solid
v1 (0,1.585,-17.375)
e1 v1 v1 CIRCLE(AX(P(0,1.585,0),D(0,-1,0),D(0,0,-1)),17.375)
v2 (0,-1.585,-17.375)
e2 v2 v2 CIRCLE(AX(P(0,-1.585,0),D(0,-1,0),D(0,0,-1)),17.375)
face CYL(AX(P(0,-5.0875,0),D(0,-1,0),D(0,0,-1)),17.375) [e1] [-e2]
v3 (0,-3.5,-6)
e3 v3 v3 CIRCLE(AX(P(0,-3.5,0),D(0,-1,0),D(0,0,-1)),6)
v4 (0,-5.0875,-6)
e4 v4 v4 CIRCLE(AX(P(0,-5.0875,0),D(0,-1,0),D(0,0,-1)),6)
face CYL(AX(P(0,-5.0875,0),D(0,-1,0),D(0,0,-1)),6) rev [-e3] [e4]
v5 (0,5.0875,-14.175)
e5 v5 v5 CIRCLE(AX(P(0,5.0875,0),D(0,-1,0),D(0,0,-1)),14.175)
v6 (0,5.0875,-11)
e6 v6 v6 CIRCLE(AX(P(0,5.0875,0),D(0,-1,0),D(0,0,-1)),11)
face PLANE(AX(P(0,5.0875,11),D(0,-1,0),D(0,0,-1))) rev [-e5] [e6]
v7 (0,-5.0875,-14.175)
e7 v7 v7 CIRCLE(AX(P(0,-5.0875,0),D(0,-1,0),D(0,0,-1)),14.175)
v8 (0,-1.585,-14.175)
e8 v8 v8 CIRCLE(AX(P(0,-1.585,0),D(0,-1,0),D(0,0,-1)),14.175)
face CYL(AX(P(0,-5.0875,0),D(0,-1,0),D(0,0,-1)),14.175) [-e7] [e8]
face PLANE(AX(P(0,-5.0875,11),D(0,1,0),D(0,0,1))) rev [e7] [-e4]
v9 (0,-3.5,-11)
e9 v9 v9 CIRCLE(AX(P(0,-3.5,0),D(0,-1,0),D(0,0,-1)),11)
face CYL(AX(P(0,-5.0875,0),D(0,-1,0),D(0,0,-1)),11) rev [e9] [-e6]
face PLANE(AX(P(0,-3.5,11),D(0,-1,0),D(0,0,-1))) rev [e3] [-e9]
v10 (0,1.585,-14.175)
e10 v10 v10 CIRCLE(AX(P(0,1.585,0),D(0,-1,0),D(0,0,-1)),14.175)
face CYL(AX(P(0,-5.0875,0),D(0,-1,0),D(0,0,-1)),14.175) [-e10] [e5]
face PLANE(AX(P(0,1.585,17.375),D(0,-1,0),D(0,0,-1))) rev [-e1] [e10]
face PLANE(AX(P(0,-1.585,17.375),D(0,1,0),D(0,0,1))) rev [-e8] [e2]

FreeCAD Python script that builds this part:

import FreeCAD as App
import Part
import Sketcher


def add_polygon(sketch, points):
    """Adds a closed chain of lines whose ends are joined by coincident constraints."""
    first, n = sketch.GeometryCount, len(points)
    for a, b in zip(points, points[1:] + points[:1]):
        sketch.addGeometry(Part.LineSegment(App.Vector(*a, 0), App.Vector(*b, 0)), False)
    for i in range(n):
        sketch.addConstraint(Sketcher.Constraint("Coincident", first + i, 2, first + (i + 1) % n, 1))

doc = App.newDocument("Part")
body = doc.addObject("PartDesign::Body", "Body")

sketch1 = body.newObject("Sketcher::SketchObject", "Sketch")
sketch1.AttachmentSupport = (doc.getObject("YZ_Plane"), [""])
sketch1.MapMode = "FlatFace"
add_polygon(sketch1, [(-5.0875, 6), (-3.5, 6), (-3.5, 11), (5.0875, 11), (5.0875, 14.175), (1.585, 14.175), (1.585, 17.375), (-1.585, 17.375), (-1.585, 14.175), (-5.0875, 14.175)])
sketch1.addConstraint([
    Sketcher.Constraint("Horizontal", 0),
    Sketcher.Constraint("Vertical", 1),
    Sketcher.Constraint("Horizontal", 2),
    Sketcher.Constraint("Vertical", 3),
    Sketcher.Constraint("Horizontal", 4),
    Sketcher.Constraint("Vertical", 5),
    Sketcher.Constraint("Horizontal", 6),
    Sketcher.Constraint("Vertical", 7),
    Sketcher.Constraint("Horizontal", 8),
    Sketcher.Constraint("Vertical", 9),
    Sketcher.Constraint("Symmetric", 4, 2, 7, 2, -2),
    Sketcher.Constraint("Equal", 4, 8),
    Sketcher.Constraint("DistanceY", 1, 1, 1, 2, 5.0),
    Sketcher.Constraint("DistanceY", 5, 1, 5, 2, 3.2),
    Sketcher.Constraint("DistanceY", -1, 1, 0, 2, 6.0),
    Sketcher.Constraint("DistanceX", 6, 2, 6, 1, 3.17),
    Sketcher.Constraint("DistanceX", 0, 2, -1, 1, 3.5),
    Sketcher.Constraint("DistanceY", 3, 1, 3, 2, 3.175),
    Sketcher.Constraint("DistanceX", 0, 1, 0, 2, 1.5875),
])
revolution = body.newObject("PartDesign::Revolution", "Revolution")
revolution.Profile = sketch1
revolution.ReferenceAxis = (sketch1, ["H_Axis"])
revolution.Angle = 360

doc.recompute()
